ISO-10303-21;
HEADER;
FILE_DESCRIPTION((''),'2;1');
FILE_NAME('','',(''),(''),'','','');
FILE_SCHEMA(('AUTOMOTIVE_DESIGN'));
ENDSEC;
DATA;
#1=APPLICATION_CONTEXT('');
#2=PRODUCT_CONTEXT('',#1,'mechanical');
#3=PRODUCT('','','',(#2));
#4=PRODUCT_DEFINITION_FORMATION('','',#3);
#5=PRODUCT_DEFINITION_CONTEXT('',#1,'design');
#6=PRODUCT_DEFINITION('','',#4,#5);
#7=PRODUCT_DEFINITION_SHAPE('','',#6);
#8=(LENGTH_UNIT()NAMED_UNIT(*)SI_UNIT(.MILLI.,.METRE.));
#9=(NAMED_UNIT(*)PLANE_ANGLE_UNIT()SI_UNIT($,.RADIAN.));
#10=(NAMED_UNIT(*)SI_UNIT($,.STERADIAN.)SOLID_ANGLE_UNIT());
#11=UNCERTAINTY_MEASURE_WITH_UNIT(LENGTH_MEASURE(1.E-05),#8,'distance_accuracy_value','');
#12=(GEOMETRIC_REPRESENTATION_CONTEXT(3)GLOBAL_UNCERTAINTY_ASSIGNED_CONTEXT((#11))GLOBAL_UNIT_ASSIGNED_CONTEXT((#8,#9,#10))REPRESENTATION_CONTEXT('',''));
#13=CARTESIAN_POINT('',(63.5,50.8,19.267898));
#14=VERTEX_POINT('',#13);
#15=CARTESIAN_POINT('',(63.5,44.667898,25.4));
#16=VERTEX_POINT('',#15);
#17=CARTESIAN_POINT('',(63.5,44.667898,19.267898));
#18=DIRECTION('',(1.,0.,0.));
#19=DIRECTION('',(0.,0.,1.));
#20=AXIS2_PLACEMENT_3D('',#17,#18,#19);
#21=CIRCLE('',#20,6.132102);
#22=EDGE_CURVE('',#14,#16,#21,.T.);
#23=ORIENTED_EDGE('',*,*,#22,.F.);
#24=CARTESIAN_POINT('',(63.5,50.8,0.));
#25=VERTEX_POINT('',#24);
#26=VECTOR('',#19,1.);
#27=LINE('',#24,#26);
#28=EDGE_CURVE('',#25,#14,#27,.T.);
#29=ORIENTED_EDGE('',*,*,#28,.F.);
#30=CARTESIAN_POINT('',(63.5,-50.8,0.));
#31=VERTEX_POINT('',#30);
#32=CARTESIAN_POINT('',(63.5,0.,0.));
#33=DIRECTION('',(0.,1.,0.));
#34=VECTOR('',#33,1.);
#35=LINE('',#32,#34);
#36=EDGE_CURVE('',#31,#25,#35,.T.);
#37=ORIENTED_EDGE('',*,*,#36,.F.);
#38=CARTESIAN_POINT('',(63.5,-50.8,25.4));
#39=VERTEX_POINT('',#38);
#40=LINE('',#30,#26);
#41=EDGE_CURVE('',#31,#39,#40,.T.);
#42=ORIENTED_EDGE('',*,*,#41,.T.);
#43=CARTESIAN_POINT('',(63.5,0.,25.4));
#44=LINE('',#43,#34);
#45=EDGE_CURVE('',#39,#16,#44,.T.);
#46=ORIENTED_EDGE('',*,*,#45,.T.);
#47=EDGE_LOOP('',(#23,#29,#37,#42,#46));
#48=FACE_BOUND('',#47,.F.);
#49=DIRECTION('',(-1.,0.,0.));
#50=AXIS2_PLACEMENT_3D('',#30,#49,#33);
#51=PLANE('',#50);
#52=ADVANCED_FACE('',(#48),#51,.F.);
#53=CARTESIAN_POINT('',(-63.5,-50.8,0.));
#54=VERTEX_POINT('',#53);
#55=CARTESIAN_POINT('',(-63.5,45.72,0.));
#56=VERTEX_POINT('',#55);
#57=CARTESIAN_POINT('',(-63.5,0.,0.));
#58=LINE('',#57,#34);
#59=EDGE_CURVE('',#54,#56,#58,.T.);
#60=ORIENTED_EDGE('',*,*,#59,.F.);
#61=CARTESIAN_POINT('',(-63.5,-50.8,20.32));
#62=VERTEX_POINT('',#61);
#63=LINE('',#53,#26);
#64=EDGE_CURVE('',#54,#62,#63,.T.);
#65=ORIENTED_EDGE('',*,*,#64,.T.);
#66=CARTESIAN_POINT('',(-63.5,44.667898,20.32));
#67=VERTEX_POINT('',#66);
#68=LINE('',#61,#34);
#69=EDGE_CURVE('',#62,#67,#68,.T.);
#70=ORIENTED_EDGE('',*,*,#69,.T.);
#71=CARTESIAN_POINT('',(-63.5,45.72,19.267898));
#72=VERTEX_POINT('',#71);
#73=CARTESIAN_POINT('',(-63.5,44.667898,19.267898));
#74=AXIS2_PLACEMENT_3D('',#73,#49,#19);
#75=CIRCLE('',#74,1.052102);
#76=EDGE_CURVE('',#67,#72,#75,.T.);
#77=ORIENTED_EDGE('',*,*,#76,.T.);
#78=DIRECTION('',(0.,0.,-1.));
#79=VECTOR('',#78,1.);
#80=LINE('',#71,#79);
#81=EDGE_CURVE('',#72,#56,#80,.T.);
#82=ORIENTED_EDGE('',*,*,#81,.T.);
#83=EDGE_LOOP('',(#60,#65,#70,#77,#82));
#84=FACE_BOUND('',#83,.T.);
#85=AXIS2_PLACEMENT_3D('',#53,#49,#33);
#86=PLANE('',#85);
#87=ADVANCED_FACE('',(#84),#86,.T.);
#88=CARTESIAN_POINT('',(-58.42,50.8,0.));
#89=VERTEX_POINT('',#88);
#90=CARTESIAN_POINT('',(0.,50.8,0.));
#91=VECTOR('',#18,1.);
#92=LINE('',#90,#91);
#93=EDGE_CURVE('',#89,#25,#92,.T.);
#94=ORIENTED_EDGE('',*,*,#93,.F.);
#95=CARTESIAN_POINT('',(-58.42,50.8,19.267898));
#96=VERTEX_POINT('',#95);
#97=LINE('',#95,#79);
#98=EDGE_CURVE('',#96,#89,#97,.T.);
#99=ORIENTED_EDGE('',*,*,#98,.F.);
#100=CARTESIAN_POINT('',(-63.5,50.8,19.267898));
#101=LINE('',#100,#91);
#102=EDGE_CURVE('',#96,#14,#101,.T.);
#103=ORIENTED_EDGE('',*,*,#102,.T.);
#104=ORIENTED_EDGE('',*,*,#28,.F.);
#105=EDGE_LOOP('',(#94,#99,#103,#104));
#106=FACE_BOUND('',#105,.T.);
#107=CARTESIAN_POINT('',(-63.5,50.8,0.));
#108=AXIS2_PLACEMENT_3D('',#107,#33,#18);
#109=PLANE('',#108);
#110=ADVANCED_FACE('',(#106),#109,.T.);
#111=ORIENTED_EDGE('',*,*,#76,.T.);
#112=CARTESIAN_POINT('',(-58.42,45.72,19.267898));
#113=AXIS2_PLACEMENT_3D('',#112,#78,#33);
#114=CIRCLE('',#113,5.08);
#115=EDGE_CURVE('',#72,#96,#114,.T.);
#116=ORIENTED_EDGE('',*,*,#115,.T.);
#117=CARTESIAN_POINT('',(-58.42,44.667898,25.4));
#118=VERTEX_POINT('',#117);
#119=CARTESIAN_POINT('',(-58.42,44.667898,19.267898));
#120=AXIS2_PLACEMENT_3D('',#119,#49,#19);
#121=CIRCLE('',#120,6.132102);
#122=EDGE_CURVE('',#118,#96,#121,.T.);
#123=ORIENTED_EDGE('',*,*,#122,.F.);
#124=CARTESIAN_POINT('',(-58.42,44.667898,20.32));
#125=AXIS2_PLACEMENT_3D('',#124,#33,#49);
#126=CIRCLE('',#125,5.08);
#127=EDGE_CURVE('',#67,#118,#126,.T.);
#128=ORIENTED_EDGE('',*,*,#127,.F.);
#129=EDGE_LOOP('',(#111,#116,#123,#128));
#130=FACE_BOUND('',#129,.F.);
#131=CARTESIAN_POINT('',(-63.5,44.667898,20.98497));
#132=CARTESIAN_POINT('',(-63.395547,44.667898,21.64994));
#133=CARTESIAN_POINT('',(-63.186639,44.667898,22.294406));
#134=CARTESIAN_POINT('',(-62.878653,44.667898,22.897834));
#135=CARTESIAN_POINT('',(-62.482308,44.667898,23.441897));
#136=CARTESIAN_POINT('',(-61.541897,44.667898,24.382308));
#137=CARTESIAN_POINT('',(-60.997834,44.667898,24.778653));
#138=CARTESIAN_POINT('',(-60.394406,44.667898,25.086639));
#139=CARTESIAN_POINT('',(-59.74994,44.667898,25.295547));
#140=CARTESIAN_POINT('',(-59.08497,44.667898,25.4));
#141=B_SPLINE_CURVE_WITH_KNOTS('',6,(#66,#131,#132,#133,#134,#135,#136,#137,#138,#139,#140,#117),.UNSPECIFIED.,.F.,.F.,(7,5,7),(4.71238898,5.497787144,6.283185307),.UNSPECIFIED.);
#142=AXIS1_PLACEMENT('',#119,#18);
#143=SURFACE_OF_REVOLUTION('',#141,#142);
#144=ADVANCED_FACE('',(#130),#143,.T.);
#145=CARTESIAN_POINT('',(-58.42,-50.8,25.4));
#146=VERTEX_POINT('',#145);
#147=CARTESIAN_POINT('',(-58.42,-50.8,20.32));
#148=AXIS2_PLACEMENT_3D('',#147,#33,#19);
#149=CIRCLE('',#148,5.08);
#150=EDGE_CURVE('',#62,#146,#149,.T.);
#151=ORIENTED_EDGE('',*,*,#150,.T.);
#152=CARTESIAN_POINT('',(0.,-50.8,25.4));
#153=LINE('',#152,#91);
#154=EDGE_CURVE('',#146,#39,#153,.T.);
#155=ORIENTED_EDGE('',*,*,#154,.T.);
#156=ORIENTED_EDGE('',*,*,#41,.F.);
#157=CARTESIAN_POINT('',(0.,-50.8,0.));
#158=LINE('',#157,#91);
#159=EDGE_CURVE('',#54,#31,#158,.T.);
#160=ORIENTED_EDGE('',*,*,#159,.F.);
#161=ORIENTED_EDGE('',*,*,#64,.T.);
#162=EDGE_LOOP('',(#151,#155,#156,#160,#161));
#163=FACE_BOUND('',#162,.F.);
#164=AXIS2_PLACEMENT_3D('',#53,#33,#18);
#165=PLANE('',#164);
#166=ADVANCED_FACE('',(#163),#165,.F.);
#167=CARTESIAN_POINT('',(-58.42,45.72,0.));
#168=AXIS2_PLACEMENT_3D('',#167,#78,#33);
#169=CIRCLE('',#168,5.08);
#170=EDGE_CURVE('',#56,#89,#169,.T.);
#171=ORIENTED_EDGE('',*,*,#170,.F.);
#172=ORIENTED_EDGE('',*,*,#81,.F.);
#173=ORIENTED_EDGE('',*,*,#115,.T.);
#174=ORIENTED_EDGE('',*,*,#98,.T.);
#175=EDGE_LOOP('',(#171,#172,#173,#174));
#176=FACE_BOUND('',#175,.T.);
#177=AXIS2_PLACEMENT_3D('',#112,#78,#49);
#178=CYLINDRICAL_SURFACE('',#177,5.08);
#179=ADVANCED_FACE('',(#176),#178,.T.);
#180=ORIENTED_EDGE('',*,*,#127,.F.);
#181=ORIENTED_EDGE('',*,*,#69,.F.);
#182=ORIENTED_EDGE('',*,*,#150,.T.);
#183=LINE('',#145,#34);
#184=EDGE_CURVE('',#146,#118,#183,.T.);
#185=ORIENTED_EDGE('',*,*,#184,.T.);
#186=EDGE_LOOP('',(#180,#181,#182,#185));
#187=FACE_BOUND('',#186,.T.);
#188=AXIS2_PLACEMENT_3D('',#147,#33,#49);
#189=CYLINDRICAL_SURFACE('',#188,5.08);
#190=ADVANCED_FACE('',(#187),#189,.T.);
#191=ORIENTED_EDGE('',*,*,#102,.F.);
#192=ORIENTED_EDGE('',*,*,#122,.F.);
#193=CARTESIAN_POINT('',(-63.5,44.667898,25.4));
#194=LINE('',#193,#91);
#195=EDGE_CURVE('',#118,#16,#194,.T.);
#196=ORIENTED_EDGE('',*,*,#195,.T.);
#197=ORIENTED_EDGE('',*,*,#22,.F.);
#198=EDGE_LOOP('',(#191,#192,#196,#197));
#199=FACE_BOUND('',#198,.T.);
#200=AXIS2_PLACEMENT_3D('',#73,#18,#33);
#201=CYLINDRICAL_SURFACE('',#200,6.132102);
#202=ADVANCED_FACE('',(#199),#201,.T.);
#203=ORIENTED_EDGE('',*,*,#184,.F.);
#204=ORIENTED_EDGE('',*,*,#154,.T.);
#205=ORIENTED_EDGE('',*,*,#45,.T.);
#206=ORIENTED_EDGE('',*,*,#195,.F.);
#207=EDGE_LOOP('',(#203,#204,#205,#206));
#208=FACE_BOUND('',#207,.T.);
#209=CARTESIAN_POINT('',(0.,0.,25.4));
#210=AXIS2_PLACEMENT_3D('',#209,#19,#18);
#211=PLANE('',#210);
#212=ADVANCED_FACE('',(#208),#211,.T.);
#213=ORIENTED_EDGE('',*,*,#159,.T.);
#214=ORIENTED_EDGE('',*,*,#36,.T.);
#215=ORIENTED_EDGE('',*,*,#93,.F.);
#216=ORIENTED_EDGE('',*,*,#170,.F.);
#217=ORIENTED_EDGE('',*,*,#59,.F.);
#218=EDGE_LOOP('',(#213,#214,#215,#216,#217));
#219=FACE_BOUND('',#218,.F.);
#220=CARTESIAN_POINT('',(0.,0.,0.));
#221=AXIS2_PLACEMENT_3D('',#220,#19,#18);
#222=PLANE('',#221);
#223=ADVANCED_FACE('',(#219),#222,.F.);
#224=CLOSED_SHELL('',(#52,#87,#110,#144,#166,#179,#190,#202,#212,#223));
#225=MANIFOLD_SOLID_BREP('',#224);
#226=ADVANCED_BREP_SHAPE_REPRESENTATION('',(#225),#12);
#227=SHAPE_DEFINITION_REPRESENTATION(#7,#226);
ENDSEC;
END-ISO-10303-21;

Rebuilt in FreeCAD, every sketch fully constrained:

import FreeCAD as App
import Part
import Sketcher
Q = App.Units.Quantity


def edges_at(feature, points):
    """Names of the edges that pass closest to the given points."""
    edges = feature.Shape.Edges
    near = lambda p: min(range(len(edges)), key=lambda i: edges[i].distToShape(Part.Vertex(*p))[0])
    return sorted({f"Edge{near(p) + 1}" for p in points})

doc = App.newDocument("Part")
body = doc.addObject("PartDesign::Body", "Body")

# Sketch on XY plane
sketch1 = body.newObject("Sketcher::SketchObject", "Sketch")
sketch1.AttachmentSupport = (doc.getObject("XY_Plane"), [""])
sketch1.MapMode = "FlatFace"
sketch1.addGeometry([
    Part.LineSegment(App.Vector(-64, 51, 0), App.Vector(-64, -51, 0)),
    Part.LineSegment(App.Vector(-64, -51, 0), App.Vector(64, -51, 0)),
    Part.LineSegment(App.Vector(64, -51, 0), App.Vector(64, 51, 0)),
    Part.LineSegment(App.Vector(64, 51, 0), App.Vector(-64, 51, 0)),
], False)
sketch1.addConstraint([
    Sketcher.Constraint("Coincident", 0, 2, 1, 1),
    Sketcher.Constraint("Coincident", 1, 2, 2, 1),
    Sketcher.Constraint("Coincident", 2, 2, 3, 1),
    Sketcher.Constraint("Coincident", 3, 2, 0, 1),
    Sketcher.Constraint("Vertical", 0),
    Sketcher.Constraint("Horizontal", 1),
    Sketcher.Constraint("Vertical", 2),
    Sketcher.Constraint("Horizontal", 3),
    Sketcher.Constraint("Symmetric", 0, 2, 2, 2, -1, 1),
    Sketcher.Constraint("DistanceX", 1, 1, 1, 2, Q("5 in")),
    Sketcher.Constraint("DistanceY", 0, 2, 0, 1, Q("4 in")),
])
pad1 = body.newObject("PartDesign::Pad", "Pad")
pad1.Profile = sketch1
pad1.Length = Q("1 in")
doc.recompute()

fillet = body.newObject("PartDesign::Fillet", "Fillet")
fillet.Base = (pad1, edges_at(pad1, [(0, 50.8, 25.4)]))
fillet.Radius = 6.132102
doc.recompute()

fillet2 = body.newObject("PartDesign::Fillet", "Fillet001")
fillet2.Base = (fillet, edges_at(fillet, [(-63.5, -3.066, 25.4)]))
fillet2.Radius = Q("0.2 in")

doc.recompute()
